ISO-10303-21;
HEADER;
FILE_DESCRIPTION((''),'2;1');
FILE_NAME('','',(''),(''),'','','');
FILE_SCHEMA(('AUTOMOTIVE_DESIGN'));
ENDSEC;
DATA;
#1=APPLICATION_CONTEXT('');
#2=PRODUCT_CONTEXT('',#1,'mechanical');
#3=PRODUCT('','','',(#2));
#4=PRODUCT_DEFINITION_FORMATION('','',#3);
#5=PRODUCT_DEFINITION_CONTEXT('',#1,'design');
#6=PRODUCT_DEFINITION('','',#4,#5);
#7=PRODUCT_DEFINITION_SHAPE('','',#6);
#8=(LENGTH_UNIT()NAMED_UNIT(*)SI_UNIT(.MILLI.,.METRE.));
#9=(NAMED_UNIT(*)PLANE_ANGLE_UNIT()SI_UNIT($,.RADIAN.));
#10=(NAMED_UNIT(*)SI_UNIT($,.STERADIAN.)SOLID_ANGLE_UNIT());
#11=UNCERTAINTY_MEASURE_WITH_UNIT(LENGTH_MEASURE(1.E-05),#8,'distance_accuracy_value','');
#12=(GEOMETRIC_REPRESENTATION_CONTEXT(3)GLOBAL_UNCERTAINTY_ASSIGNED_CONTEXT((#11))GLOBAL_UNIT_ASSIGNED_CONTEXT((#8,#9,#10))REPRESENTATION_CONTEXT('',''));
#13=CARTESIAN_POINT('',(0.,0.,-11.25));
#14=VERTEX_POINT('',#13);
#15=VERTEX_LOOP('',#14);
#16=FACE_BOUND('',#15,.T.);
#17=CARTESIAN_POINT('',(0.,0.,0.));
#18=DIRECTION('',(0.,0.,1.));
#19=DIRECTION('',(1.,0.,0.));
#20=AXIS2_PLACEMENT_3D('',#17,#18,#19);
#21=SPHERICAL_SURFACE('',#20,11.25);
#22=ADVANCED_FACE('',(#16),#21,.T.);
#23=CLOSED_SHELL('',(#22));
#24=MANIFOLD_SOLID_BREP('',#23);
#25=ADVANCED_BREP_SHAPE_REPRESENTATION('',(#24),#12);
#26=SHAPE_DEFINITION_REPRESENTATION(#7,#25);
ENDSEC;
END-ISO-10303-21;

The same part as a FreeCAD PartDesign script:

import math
import FreeCAD as App
import Part
import Sketcher

V = App.Vector

doc = App.newDocument("Part")
body = doc.addObject("PartDesign::Body", "Body")

# Sketch on YZ plane
sketch1 = doc.addObject("Sketcher::SketchObject", "Sketch")
body.addObject(sketch1)
sketch1.AttachmentSupport = (doc.YZ_Plane, [""])
sketch1.MapMode = "FlatFace"
sketch1.addGeometry(Part.LineSegment(V(0, -11, 0), V(0, 11, 0)), False)
sketch1.addGeometry(Part.ArcOfCircle(Part.Circle(V(0, 0, 0), V(0, 0, 1), 11), math.radians(90), math.radians(270)), False)
sketch1.addConstraint(Sketcher.Constraint("Coincident", 0, 1, 1, 2))
sketch1.addConstraint(Sketcher.Constraint("Coincident", 1, 1, 0, 2))
sketch1.addConstraint(Sketcher.Constraint("Vertical", 0))
sketch1.addConstraint(Sketcher.Constraint("Coincident", 1, 3, -1, 1))
sketch1.addConstraint(Sketcher.Constraint("PointOnObject", 0, 1, -2))
sketch1.addConstraint(Sketcher.Constraint("Radius", 1, 11.25))

# Sketch on XY plane
sketch2 = doc.addObject("Sketcher::SketchObject", "Sketch001")
body.addObject(sketch2)
sketch2.AttachmentSupport = (doc.XY_Plane, [""])
sketch2.MapMode = "FlatFace"
sketch2.addGeometry(Part.Circle(V(0, 0, 0), V(0, 0, 1), 11), False)
sketch2.addConstraint(Sketcher.Constraint("Coincident", 0, 3, -1, 1))
sketch2.addConstraint(Sketcher.Constraint("Diameter", 0, 22.25))
doc.recompute()

additivepipe = doc.addObject("PartDesign::AdditivePipe", "AdditivePipe")
body.addObject(additivepipe)
additivepipe.Profile = sketch1
additivepipe.Spine = (sketch2, ["Edge1"])

doc.recompute()
